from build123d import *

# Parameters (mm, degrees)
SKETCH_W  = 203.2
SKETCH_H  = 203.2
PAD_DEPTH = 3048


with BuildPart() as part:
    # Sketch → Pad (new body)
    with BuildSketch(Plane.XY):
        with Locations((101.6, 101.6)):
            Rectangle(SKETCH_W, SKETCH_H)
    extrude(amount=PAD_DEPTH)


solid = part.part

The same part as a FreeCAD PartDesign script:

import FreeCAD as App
import Part
import Sketcher
from FreeCAD import Vector
Q = App.Units.Quantity


def add_polygon(sketch, points):
    """Adds a closed chain of lines whose ends are joined by coincident constraints."""
    first, n = sketch.GeometryCount, len(points)
    for a, b in zip(points, points[1:] + points[:1]):
        sketch.addGeometry(Part.LineSegment(App.Vector(*a, 0), App.Vector(*b, 0)), False)
    for i in range(n):
        sketch.addConstraint(Sketcher.Constraint("Coincident", first + i, 2, first + (i + 1) % n, 1))

doc = App.newDocument("Part")
body = doc.addObject("PartDesign::Body", "Body")

sketch1 = body.newObject("Sketcher::SketchObject", "Sketch")
sketch1.AttachmentSupport = (doc.getObject("XY_Plane"), [""])
sketch1.MapMode = "FlatFace"
add_polygon(sketch1, [(0, 203), (0, 0), (203, 0), (203, 203)])
sketch1.addConstraint(Sketcher.Constraint("Vertical", 0))
sketch1.addConstraint(Sketcher.Constraint("Horizontal", 1))
sketch1.addConstraint(Sketcher.Constraint("Vertical", 2))
sketch1.addConstraint(Sketcher.Constraint("Horizontal", 3))
sketch1.addConstraint(Sketcher.Constraint("Coincident", 0, 2, -1, 1))
sketch1.addConstraint(Sketcher.Constraint("Equal", 3, 0))
sketch1.addConstraint(Sketcher.Constraint("DistanceX", 1, 1, 1, 2, Q("8 in")))
pad1 = body.newObject("PartDesign::Pad", "Pad")
pad1.Profile = sketch1
pad1.Length = Q("120 in")

doc.recompute()
